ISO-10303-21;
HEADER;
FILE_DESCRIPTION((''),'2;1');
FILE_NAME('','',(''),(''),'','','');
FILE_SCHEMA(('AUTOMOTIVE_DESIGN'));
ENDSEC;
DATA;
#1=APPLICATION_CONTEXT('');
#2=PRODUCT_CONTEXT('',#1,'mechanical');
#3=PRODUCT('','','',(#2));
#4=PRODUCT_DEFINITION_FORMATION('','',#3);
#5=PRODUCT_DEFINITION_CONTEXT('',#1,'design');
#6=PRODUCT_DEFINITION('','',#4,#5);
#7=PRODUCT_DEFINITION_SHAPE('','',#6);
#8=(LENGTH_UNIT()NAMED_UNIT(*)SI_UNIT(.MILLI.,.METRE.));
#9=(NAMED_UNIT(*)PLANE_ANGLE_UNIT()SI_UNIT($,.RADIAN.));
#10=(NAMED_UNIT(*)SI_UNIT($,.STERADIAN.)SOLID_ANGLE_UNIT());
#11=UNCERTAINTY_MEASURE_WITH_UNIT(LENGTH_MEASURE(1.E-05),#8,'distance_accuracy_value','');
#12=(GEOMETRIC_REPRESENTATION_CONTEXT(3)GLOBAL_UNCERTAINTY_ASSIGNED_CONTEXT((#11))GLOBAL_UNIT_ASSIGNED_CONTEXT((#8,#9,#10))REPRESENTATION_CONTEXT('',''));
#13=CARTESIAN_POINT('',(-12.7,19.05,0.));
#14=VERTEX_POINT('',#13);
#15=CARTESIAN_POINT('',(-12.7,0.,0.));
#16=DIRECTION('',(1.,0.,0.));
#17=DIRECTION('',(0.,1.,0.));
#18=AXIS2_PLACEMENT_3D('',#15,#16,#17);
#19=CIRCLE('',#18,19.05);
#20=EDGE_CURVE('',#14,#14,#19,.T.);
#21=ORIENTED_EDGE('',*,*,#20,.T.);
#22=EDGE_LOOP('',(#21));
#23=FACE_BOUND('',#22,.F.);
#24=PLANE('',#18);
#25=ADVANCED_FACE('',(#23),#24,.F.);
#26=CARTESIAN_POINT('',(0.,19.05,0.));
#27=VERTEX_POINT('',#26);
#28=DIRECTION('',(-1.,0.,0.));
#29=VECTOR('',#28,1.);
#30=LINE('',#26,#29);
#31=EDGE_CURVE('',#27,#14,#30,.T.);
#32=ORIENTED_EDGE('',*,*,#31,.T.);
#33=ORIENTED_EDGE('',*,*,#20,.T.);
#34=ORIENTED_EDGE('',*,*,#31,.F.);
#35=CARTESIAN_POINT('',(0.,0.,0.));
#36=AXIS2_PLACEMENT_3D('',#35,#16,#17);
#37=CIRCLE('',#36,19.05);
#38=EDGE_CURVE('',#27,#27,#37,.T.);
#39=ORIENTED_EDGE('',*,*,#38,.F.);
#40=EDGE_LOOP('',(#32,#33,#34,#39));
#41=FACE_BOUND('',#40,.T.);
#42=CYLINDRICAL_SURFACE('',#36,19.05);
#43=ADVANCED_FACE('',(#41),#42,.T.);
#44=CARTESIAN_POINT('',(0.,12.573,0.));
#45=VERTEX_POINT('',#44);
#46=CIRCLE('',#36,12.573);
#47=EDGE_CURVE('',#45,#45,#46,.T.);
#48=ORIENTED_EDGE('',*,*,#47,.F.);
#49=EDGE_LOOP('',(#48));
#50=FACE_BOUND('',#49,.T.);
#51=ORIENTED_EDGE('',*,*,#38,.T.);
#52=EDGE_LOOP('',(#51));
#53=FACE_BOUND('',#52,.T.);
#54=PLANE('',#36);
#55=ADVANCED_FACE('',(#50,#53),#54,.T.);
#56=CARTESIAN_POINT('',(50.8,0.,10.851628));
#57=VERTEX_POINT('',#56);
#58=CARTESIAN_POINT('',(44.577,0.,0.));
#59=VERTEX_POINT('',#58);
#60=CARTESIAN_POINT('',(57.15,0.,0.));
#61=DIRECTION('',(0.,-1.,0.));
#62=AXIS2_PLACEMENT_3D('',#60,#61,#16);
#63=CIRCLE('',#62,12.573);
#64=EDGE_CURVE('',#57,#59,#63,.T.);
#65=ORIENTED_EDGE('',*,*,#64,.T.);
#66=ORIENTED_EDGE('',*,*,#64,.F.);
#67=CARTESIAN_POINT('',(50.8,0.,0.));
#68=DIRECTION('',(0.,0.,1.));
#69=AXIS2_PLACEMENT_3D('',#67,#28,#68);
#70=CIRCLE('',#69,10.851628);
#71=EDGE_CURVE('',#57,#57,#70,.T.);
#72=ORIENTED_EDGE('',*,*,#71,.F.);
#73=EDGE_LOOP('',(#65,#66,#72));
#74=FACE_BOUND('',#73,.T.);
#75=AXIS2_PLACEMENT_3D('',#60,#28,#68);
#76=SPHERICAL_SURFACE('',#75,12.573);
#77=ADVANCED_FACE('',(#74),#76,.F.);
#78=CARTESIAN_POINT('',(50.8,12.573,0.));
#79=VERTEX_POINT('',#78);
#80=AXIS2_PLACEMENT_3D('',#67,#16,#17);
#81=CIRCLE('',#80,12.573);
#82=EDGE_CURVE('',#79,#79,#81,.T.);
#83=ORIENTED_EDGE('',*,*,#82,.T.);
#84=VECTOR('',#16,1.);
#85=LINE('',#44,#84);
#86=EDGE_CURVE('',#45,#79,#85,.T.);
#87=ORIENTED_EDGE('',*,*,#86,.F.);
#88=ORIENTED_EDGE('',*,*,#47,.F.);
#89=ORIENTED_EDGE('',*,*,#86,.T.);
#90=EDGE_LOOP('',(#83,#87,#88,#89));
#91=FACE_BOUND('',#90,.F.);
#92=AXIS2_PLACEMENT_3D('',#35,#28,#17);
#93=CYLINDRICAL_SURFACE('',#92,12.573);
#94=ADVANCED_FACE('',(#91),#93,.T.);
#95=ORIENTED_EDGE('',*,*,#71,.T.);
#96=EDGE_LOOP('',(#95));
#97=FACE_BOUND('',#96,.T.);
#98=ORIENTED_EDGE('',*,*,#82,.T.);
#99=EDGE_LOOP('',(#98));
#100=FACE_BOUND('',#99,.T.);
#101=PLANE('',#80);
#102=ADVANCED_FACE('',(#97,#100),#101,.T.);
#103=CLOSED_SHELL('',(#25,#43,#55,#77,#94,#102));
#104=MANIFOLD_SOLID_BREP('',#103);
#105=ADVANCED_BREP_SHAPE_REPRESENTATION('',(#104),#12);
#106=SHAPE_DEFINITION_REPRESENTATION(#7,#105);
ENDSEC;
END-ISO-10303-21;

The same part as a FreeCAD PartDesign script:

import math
import FreeCAD as App
import Part
import Sketcher
Q = App.Units.Quantity

doc = App.newDocument("Part")
body = doc.addObject("PartDesign::Body", "Body")

sketch1 = body.newObject("Sketcher::SketchObject", "Sketch")
sketch1.AttachmentSupport = (doc.getObject("YZ_Plane"), [""])
sketch1.MapMode = "FlatFace"
sketch1.addGeometry(Part.Circle(App.Vector(0, 0, 0), App.Vector(0, 0, 1), 19), False)
sketch1.addConstraint(Sketcher.Constraint("Coincident", 0, 3, -1, 1))
sketch1.addConstraint(Sketcher.Constraint("Diameter", 0, Q("1.5 in")))
pad1 = body.newObject("PartDesign::Pad", "Pad")
pad1.Profile = sketch1
pad1.Length = Q("0.5 in")
pad1.Reversed = True

sketch2 = body.newObject("Sketcher::SketchObject", "Sketch001")
sketch2.AttachmentSupport = (doc.getObject("YZ_Plane"), [""])
sketch2.MapMode = "FlatFace"
sketch2.addGeometry(Part.Circle(App.Vector(0, 0, 0), App.Vector(0, 0, 1), 13), False)
sketch2.addConstraint(Sketcher.Constraint("Coincident", 0, 3, -1, 1))
sketch2.addConstraint(Sketcher.Constraint("Diameter", 0, Q("0.99 in")))
pad2 = body.newObject("PartDesign::Pad", "Pad001")
pad2.Profile = sketch2
pad2.Length = Q("2 in")

sketch3 = body.newObject("Sketcher::SketchObject", "Sketch002")
sketch3.AttachmentSupport = (doc.getObject("XZ_Plane"), [""])
sketch3.MapMode = "FlatFace"
sketch3.addGeometry(Part.LineSegment(App.Vector(45, 0, 0), App.Vector(70, 0, 0)), False)
sketch3.addGeometry(Part.ArcOfCircle(Part.Circle(App.Vector(57, 0, 0), App.Vector(0, 0, 1), 13), math.radians(0), math.radians(180)), False)
sketch3.addConstraint(Sketcher.Constraint("Coincident", 0, 1, 1, 2))
sketch3.addConstraint(Sketcher.Constraint("Coincident", 1, 1, 0, 2))
sketch3.addConstraint(Sketcher.Constraint("Horizontal", 0))
sketch3.addConstraint(Sketcher.Constraint("PointOnObject", 1, 3, -1))
sketch3.addConstraint(Sketcher.Constraint("PointOnObject", 0, 1, -1))
sketch3.addConstraint(Sketcher.Constraint("Radius", 1, Q("0.495 in")))
sketch3.addConstraint(Sketcher.Constraint("DistanceX", -1, 1, 1, 3, Q("2.25 in")))
groove = body.newObject("PartDesign::Groove", "Groove")
groove.Profile = sketch3
groove.ReferenceAxis = (sketch3, ["H_Axis"])
groove.Angle = 360

doc.recompute()
